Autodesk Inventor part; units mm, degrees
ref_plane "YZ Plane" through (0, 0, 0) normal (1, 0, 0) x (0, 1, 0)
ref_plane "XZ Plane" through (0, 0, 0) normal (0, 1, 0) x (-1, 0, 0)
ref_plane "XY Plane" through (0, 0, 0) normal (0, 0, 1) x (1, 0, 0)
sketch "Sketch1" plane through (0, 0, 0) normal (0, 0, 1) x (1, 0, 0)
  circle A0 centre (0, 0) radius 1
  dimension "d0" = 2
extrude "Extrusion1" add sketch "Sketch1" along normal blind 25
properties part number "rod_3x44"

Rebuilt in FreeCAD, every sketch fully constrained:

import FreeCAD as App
import Part
import Sketcher

V = App.Vector
Q = App.Units.Quantity

doc = App.newDocument("Part")
body = doc.addObject("PartDesign::Body", "Body")

# Sketch on XY plane
sketch1 = body.newObject("Sketcher::SketchObject", "Sketch")
sketch1.AttachmentSupport = (doc.getObject("XY_Plane"), [""])
sketch1.MapMode = "FlatFace"
sketch1.addGeometry(Part.Circle(V(0, 0, 0), V(0, 0, 1), 1), False)
sketch1.addConstraint(Sketcher.Constraint("Coincident", 0, 3, -1, 1))
sketch1.addConstraint(Sketcher.Constraint("Diameter", 0, Q("2 mm")))
pad1 = body.newObject("PartDesign::Pad", "Pad")
pad1.Profile = sketch1
pad1.Length = 25

doc.recompute()
